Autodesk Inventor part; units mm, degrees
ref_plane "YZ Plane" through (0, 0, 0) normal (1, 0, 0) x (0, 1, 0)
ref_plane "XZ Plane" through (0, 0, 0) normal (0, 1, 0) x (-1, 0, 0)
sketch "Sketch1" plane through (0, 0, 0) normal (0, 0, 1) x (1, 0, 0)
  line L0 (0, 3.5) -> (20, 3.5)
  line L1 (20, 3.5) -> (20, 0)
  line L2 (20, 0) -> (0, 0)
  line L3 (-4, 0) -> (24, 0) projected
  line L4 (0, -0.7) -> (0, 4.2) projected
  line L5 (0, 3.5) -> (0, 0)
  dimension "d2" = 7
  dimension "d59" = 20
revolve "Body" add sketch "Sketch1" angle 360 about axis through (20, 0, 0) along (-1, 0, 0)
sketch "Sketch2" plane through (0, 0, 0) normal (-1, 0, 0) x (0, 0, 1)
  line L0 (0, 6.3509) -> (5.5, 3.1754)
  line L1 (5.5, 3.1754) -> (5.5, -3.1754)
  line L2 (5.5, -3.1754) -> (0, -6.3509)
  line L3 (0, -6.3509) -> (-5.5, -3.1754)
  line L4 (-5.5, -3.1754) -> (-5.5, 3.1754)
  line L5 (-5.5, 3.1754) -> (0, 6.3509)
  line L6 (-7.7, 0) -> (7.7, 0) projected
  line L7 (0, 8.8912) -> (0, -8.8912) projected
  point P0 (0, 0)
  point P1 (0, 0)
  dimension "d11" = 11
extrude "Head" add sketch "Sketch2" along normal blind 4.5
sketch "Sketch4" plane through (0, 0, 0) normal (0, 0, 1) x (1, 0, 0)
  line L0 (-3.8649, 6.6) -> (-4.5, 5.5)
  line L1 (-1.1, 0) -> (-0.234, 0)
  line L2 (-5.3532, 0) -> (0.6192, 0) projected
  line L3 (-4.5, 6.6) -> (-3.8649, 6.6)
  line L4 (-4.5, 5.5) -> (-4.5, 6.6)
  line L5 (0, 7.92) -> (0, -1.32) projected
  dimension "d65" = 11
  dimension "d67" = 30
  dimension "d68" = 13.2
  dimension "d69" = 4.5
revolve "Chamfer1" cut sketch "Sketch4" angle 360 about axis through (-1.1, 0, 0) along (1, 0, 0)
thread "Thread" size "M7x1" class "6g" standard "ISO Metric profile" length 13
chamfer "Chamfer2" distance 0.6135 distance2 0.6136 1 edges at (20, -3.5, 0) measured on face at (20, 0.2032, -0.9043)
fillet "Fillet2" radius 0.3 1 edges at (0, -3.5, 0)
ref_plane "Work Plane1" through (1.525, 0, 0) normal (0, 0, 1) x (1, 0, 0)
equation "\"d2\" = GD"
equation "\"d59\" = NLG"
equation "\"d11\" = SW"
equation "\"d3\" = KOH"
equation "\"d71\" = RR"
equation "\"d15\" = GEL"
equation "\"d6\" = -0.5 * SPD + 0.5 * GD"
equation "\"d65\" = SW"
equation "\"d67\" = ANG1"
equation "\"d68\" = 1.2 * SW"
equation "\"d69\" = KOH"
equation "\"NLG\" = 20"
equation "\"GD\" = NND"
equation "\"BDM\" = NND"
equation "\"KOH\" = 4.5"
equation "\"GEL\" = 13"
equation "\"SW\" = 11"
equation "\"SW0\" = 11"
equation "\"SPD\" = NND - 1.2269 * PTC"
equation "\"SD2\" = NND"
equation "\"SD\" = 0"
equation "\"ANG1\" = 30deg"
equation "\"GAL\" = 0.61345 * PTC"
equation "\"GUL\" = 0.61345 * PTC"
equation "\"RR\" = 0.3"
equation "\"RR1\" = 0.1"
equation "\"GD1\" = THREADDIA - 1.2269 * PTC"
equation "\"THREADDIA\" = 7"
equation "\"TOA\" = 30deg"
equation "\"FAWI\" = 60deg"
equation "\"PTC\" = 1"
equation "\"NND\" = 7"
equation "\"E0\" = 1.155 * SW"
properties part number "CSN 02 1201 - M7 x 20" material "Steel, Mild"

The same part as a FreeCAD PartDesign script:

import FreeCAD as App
import Part
import Sketcher
from FreeCAD import Vector
Q = App.Units.Quantity


def edges_at(feature, points):
    """Names of the edges that pass closest to the given points."""
    edges = feature.Shape.Edges
    near = lambda p: min(range(len(edges)), key=lambda i: edges[i].distToShape(Part.Vertex(*p))[0])
    return sorted({f"Edge{near(p) + 1}" for p in points})

doc = App.newDocument("Part")
body = doc.addObject("PartDesign::Body", "Body")

sketch1 = doc.addObject("Sketcher::SketchObject", "Sketch")
body.addObject(sketch1)
sketch1.AttachmentSupport = (doc.XY_Plane, [""])
sketch1.MapMode = "FlatFace"
sketch1.addGeometry(Part.LineSegment(Vector(20, 3.5, 0), Vector(0, 3.5, 0)), False)
sketch1.addGeometry(Part.LineSegment(Vector(0, 3.5, 0), Vector(0, 0, 0)), False)
sketch1.addGeometry(Part.LineSegment(Vector(0, 0, 0), Vector(20, 0, 0)), False)
sketch1.addGeometry(Part.LineSegment(Vector(20, 0, 0), Vector(20, 3.5, 0)), False)
sketch1.addConstraint(Sketcher.Constraint("Coincident", 0, 2, 1, 1))
sketch1.addConstraint(Sketcher.Constraint("Coincident", 1, 2, 2, 1))
sketch1.addConstraint(Sketcher.Constraint("Coincident", 2, 2, 3, 1))
sketch1.addConstraint(Sketcher.Constraint("Coincident", 3, 2, 0, 1))
sketch1.addConstraint(Sketcher.Constraint("Horizontal", 0))
sketch1.addConstraint(Sketcher.Constraint("Vertical", 1))
sketch1.addConstraint(Sketcher.Constraint("Horizontal", 2))
sketch1.addConstraint(Sketcher.Constraint("Vertical", 3))
sketch1.addConstraint(Sketcher.Constraint("Coincident", 1, 2, -1, 1))
sketch1.addConstraint(Sketcher.Constraint("DistanceX", 0, 2, 0, 1, Q("0.7874 in")))
sketch1.addConstraint(Sketcher.Constraint("DistanceY", 1, 2, 1, 1, Q("0.1378 in")))
revolution = doc.addObject("PartDesign::Revolution", "Revolution")
body.addObject(revolution)
revolution.Profile = sketch1
revolution.ReferenceAxis = (sketch1, ["H_Axis"])
revolution.Angle = 360

sketch2 = doc.addObject("Sketcher::SketchObject", "Sketch001")
body.addObject(sketch2)
sketch2.AttachmentSupport = (doc.YZ_Plane, [""])
sketch2.MapMode = "FlatFace"
sketch2.addGeometry(Part.LineSegment(Vector(3.1754, -5.5, 0), Vector(-3.1754, -5.5, 0)), False)
sketch2.addGeometry(Part.LineSegment(Vector(-3.1754, -5.5, 0), Vector(-6.3509, 0, 0)), False)
sketch2.addGeometry(Part.LineSegment(Vector(-6.3509, 0, 0), Vector(-3.1754, 5.5, 0)), False)
sketch2.addGeometry(Part.LineSegment(Vector(-3.1754, 5.5, 0), Vector(3.1754, 5.5, 0)), False)
sketch2.addGeometry(Part.LineSegment(Vector(3.1754, 5.5, 0), Vector(6.3509, 0, 0)), False)
sketch2.addGeometry(Part.LineSegment(Vector(6.3509, 0, 0), Vector(3.1754, -5.5, 0)), False)
sketch2.addConstraint(Sketcher.Constraint("Coincident", 0, 2, 1, 1))
sketch2.addConstraint(Sketcher.Constraint("Coincident", 1, 2, 2, 1))
sketch2.addConstraint(Sketcher.Constraint("Coincident", 2, 2, 3, 1))
sketch2.addConstraint(Sketcher.Constraint("Coincident", 3, 2, 4, 1))
sketch2.addConstraint(Sketcher.Constraint("Coincident", 4, 2, 5, 1))
sketch2.addConstraint(Sketcher.Constraint("Coincident", 5, 2, 0, 1))
sketch2.addConstraint(Sketcher.Constraint("Horizontal", 0))
sketch2.addConstraint(Sketcher.Constraint("Horizontal", 3))
sketch2.addConstraint(Sketcher.Constraint("Symmetric", 0, 2, 3, 2, -1, 1))
sketch2.addConstraint(Sketcher.Constraint("Symmetric", 1, 2, 4, 2, -1, 1))
sketch2.addConstraint(Sketcher.Constraint("PointOnObject", 1, 2, -1))
sketch2.addConstraint(Sketcher.Constraint("Parallel", 2, 5))
sketch2.addConstraint(Sketcher.Constraint("Vertical", 0, 2, 2, 2))
sketch2.addConstraint(Sketcher.Constraint("Angle", 1, Q("120.0006 deg")))
sketch2.addConstraint(Sketcher.Constraint("DistanceY", 0, 2, 2, 2, 11.0))
sketch2.addConstraint(Sketcher.Constraint("DistanceX", 0, 2, 0, 1, 6.3508))
pad1 = doc.addObject("PartDesign::Pad", "Pad")
body.addObject(pad1)
pad1.Profile = sketch2
pad1.Length = 4.5
pad1.Reversed = True

sketch3 = doc.addObject("Sketcher::SketchObject", "Sketch002")
body.addObject(sketch3)
sketch3.AttachmentSupport = (doc.XY_Plane, [""])
sketch3.MapMode = "FlatFace"
sketch3.addGeometry(Part.LineSegment(Vector(-4.5, 5.5, 0), Vector(-3.8649, 6.6, 0)), False)
sketch3.addGeometry(Part.LineSegment(Vector(-3.8649, 6.6, 0), Vector(-4.5, 6.6, 0)), False)
sketch3.addGeometry(Part.LineSegment(Vector(-4.5, 6.6, 0), Vector(-4.5, 5.5, 0)), False)
sketch3.addConstraint(Sketcher.Constraint("Coincident", 0, 2, 1, 1))
sketch3.addConstraint(Sketcher.Constraint("Coincident", 1, 2, 2, 1))
sketch3.addConstraint(Sketcher.Constraint("Coincident", 2, 2, 0, 1))
sketch3.addConstraint(Sketcher.Constraint("Horizontal", 1))
sketch3.addConstraint(Sketcher.Constraint("Vertical", 2))
sketch3.addConstraint(Sketcher.Constraint("Angle", 0, Q("59.9994 deg")))
sketch3.addConstraint(Sketcher.Constraint("Distance", 0, Q("0.05 in")))
sketch3.addConstraint(Sketcher.Constraint("DistanceX", 1, 2, -1, 1, 4.5))
sketch3.addConstraint(Sketcher.Constraint("DistanceY", -1, 1, 0, 2, 6.6))
groove = doc.addObject("PartDesign::Groove", "Groove")
body.addObject(groove)
groove.Profile = sketch3
groove.ReferenceAxis = (sketch3, ["H_Axis"])
groove.Angle = 360
doc.recompute()

chamfer = doc.addObject("PartDesign::Chamfer", "Chamfer")
body.addObject(chamfer)
chamfer.Base = (groove, edges_at(groove, [(20, -3.5, 0)]))
chamfer.ChamferType = "Two distances"
chamfer.Size = 0.6135
chamfer.Size2 = 0.6136
doc.recompute()

fillet = doc.addObject("PartDesign::Fillet", "Fillet")
body.addObject(fillet)
fillet.Base = (chamfer, edges_at(chamfer, [(0, -3.5, 0)]))
fillet.Radius = Q("0.011811 in")

doc.recompute()
